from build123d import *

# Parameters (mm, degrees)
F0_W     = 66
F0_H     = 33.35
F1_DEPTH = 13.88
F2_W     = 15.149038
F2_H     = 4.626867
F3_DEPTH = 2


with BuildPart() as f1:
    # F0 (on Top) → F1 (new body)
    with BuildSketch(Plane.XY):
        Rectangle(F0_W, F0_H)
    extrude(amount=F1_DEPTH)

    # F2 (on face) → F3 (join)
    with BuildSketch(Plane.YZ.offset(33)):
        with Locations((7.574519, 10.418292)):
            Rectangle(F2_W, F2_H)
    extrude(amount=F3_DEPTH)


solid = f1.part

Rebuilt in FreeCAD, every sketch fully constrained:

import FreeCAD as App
import Part
import Sketcher


def add_polygon(sketch, points):
    """Adds a closed chain of lines whose ends are joined by coincident constraints."""
    first, n = sketch.GeometryCount, len(points)
    for a, b in zip(points, points[1:] + points[:1]):
        sketch.addGeometry(Part.LineSegment(App.Vector(*a, 0), App.Vector(*b, 0)), False)
    for i in range(n):
        sketch.addConstraint(Sketcher.Constraint("Coincident", first + i, 2, first + (i + 1) % n, 1))

doc = App.newDocument("Part")
body = doc.addObject("PartDesign::Body", "Body")

# Sketch on XY plane
sketch1 = doc.addObject("Sketcher::SketchObject", "Sketch")
body.addObject(sketch1)
sketch1.AttachmentSupport = (doc.XY_Plane, [""])
sketch1.MapMode = "FlatFace"
add_polygon(sketch1, [(-33, 17), (-33, -17), (33, -17), (33, 17)])  # lines 0-3
sketch1.addConstraint(Sketcher.Constraint("Vertical", 0))
sketch1.addConstraint(Sketcher.Constraint("Horizontal", 1))
sketch1.addConstraint(Sketcher.Constraint("Vertical", 2))
sketch1.addConstraint(Sketcher.Constraint("Horizontal", 3))
sketch1.addConstraint(Sketcher.Constraint("Symmetric", 0, 2, 2, 2, -1, 1))
sketch1.addConstraint(Sketcher.Constraint("DistanceX", 1, 1, 1, 2, 66.0))
sketch1.addConstraint(Sketcher.Constraint("DistanceY", 0, 2, 0, 1, 33.35))
pad1 = doc.addObject("PartDesign::Pad", "Pad")
body.addObject(pad1)
pad1.Profile = sketch1
pad1.Length = 13.88

# Sketch on YZ plane
sketch2 = doc.addObject("Sketcher::SketchObject", "Sketch001")
body.addObject(sketch2)
sketch2.AttachmentSupport = (doc.YZ_Plane, [""])
sketch2.MapMode = "FlatFace"
sketch2.AttachmentOffset = App.Placement(App.Vector(0, 0, 33), App.Rotation())
add_polygon(sketch2, [(0, 12.7), (0, 8.1), (15.1, 8.1), (15.1, 12.7)])  # lines 0-3
sketch2.addConstraint(Sketcher.Constraint("Vertical", 0))
sketch2.addConstraint(Sketcher.Constraint("Horizontal", 1))
sketch2.addConstraint(Sketcher.Constraint("Vertical", 2))
sketch2.addConstraint(Sketcher.Constraint("Horizontal", 3))
sketch2.addConstraint(Sketcher.Constraint("PointOnObject", 0, 2, -2))
sketch2.addConstraint(Sketcher.Constraint("DistanceX", 1, 1, 1, 2, 15.149038))
sketch2.addConstraint(Sketcher.Constraint("DistanceY", 0, 2, 0, 1, 4.626867))
sketch2.addConstraint(Sketcher.Constraint("DistanceY", -1, 1, 0, 2, 8.104859))
pad2 = doc.addObject("PartDesign::Pad", "Pad001")
body.addObject(pad2)
pad2.Profile = sketch2
pad2.Length = 2

doc.recompute()
